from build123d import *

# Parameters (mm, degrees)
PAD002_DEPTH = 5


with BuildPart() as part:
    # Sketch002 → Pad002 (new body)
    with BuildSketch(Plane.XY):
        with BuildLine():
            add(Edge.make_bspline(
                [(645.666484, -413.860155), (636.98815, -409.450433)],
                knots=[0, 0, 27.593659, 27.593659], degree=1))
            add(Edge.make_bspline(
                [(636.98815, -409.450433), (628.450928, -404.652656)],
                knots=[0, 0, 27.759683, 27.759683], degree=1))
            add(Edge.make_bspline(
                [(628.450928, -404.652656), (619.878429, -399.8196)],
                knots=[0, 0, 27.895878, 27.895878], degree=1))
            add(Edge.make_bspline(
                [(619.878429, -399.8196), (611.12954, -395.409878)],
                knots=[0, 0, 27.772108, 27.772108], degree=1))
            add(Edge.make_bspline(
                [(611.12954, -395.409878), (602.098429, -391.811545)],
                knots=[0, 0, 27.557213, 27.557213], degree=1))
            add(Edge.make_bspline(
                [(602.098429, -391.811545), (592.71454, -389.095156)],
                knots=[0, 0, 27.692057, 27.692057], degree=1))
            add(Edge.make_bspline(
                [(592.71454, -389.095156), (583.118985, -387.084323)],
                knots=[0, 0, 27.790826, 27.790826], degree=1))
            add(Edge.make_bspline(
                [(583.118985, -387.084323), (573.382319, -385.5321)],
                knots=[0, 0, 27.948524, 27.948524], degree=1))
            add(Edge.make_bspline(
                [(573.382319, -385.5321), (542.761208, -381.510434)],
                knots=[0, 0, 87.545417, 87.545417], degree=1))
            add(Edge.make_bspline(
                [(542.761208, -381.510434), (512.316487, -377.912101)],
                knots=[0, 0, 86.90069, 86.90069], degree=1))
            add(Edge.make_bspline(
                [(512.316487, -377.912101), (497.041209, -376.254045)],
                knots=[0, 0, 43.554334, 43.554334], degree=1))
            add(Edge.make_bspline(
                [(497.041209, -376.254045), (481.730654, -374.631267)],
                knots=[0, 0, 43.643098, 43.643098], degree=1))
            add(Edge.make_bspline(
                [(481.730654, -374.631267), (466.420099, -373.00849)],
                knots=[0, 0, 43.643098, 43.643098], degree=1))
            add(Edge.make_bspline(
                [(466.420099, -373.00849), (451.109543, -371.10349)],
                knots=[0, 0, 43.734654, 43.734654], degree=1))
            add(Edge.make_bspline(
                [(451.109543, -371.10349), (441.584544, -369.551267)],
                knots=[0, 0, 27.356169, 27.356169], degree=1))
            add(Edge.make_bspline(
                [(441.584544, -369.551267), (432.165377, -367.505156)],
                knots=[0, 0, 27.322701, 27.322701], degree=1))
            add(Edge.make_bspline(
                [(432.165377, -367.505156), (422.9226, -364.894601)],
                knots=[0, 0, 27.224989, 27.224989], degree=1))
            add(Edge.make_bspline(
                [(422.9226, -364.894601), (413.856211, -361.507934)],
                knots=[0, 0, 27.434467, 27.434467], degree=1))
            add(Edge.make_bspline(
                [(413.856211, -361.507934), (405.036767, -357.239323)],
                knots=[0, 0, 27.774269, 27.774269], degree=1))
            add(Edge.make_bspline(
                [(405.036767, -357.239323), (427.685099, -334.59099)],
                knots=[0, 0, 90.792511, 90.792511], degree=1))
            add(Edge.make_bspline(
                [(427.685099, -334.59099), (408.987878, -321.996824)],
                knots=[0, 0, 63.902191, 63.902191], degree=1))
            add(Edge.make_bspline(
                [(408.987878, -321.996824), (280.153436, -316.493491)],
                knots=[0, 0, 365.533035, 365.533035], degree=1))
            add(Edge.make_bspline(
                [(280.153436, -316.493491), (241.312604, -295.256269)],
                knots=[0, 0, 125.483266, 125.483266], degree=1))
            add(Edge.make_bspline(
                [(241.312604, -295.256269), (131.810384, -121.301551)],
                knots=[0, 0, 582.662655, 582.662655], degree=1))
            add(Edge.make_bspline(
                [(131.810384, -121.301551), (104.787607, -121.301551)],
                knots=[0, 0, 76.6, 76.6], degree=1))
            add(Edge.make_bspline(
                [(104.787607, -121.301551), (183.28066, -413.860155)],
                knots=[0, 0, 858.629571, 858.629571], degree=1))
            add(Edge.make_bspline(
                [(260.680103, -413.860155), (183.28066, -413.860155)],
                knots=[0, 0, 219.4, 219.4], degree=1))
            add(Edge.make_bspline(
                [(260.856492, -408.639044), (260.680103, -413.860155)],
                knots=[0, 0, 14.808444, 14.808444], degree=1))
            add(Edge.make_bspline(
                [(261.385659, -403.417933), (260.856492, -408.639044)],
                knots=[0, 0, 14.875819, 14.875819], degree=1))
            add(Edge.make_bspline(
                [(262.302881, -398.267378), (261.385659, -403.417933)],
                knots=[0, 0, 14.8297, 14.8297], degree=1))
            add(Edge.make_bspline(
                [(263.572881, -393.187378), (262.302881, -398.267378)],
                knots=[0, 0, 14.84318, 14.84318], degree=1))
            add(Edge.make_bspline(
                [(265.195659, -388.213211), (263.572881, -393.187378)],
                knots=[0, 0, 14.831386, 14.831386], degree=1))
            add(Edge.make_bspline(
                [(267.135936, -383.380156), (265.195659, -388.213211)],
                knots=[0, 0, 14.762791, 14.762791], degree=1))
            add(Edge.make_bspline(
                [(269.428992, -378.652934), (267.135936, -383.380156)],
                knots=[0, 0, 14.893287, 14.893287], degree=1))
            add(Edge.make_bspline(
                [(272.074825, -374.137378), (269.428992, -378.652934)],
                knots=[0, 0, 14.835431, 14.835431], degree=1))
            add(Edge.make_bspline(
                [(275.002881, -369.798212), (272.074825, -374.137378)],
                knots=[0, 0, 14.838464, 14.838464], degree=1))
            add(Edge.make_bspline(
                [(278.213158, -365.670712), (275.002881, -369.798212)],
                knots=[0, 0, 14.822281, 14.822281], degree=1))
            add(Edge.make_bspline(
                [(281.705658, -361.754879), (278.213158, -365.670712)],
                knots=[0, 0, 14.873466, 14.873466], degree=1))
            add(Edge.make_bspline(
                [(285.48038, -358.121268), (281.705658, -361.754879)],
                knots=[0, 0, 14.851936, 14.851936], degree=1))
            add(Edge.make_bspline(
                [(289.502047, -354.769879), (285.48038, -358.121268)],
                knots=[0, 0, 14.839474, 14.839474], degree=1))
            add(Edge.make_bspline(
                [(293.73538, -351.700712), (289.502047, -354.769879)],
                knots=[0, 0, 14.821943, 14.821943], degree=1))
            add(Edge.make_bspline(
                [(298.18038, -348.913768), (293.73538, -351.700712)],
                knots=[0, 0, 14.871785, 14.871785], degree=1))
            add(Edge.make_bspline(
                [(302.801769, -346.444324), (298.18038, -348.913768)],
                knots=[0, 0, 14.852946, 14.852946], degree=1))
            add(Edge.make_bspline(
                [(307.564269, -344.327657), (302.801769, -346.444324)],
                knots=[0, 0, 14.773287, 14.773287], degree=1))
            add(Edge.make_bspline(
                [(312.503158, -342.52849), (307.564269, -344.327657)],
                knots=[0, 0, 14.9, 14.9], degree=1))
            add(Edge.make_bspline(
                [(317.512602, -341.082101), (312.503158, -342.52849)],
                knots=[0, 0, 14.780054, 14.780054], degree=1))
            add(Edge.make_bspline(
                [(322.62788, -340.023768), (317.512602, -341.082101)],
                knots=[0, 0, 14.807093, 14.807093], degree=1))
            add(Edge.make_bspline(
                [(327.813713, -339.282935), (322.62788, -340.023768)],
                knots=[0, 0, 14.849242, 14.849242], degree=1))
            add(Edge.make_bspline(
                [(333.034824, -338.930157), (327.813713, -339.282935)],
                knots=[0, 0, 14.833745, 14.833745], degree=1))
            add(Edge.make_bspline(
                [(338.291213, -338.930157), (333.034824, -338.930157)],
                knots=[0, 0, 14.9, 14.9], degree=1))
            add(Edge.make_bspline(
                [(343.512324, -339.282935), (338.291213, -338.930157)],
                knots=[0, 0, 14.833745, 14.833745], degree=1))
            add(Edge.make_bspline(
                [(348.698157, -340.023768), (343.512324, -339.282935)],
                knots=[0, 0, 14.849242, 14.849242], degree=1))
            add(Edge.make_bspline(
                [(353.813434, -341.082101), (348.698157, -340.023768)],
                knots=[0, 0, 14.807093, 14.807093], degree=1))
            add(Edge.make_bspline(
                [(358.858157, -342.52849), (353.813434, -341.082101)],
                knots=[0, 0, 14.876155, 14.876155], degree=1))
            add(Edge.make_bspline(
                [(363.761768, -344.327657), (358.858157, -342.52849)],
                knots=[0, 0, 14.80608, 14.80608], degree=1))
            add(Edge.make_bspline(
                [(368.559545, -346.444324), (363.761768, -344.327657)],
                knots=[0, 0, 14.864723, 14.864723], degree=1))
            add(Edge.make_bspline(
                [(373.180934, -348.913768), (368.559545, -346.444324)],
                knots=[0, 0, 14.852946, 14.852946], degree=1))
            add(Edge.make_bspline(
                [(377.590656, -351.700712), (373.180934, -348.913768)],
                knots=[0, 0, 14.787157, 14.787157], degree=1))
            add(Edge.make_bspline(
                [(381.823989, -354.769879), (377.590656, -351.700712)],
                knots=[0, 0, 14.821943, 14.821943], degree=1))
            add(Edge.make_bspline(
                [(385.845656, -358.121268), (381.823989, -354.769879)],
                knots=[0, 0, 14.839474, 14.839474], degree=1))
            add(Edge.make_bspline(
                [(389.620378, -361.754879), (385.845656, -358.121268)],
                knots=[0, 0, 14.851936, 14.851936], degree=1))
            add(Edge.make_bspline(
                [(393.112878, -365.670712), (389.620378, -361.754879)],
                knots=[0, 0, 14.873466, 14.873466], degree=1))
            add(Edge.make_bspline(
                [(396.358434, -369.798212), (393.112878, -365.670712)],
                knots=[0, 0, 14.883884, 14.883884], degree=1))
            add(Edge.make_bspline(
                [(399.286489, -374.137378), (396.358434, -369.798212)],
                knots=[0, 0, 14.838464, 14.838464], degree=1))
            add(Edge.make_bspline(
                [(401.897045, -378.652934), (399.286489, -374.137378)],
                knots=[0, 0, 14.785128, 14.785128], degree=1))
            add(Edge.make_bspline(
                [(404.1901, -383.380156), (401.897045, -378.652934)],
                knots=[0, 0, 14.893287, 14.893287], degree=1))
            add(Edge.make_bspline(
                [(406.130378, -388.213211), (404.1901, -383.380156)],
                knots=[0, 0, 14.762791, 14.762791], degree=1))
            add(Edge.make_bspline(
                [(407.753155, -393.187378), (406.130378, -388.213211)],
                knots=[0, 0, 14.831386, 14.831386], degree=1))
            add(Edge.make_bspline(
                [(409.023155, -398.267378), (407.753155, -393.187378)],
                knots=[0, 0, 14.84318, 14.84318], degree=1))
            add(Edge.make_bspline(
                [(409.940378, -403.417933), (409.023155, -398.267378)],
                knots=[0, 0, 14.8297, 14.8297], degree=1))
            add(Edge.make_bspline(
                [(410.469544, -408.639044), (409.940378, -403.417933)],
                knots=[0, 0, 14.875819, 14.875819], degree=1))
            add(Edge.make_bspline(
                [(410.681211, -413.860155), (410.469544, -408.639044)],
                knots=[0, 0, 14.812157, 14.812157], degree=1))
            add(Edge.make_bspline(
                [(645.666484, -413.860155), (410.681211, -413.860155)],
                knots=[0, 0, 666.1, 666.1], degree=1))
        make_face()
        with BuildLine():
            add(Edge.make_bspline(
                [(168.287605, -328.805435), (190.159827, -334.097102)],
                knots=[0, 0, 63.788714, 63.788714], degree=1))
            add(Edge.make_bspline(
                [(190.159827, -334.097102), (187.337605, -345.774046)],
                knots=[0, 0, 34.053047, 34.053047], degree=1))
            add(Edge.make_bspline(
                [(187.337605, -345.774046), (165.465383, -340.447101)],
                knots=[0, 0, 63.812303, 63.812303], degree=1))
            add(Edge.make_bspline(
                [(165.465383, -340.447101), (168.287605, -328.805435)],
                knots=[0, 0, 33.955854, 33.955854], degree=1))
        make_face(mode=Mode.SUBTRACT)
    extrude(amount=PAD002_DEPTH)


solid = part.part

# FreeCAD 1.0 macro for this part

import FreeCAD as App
import Part
import Sketcher
from FreeCAD import Vector

doc = App.newDocument("Part")
body = doc.addObject("PartDesign::Body", "Body")

# Sketch on XY plane
sketch1 = body.newObject("Sketcher::SketchObject", "Sketch")
sketch1.AttachmentSupport = (doc.getObject("XY_Plane"), [""])
sketch1.MapMode = "FlatFace"
sketch1.addGeometry([
    Part.BSplineCurve([Vector(645.666484, -413.860155, 0), Vector(636.98815, -409.450433, 0)], [2, 2], [0, 27.593659], False, 1, [1, 1], False),  # 0
    Part.BSplineCurve([Vector(636.98815, -409.450433, 0), Vector(628.450928, -404.652656, 0)], [2, 2], [0, 27.759683], False, 1, [1, 1], False),  # 1
    Part.BSplineCurve([Vector(628.450928, -404.652656, 0), Vector(619.878429, -399.8196, 0)], [2, 2], [0, 27.895878], False, 1, [1, 1], False),  # 2
    Part.BSplineCurve([Vector(619.878429, -399.8196, 0), Vector(611.12954, -395.409878, 0)], [2, 2], [0, 27.772108], False, 1, [1, 1], False),  # 3
    Part.BSplineCurve([Vector(611.12954, -395.409878, 0), Vector(602.098429, -391.811545, 0)], [2, 2], [0, 27.557213], False, 1, [1, 1], False),  # 4
    Part.BSplineCurve([Vector(602.098429, -391.811545, 0), Vector(592.71454, -389.095156, 0)], [2, 2], [0, 27.692057], False, 1, [1, 1], False),  # 5
    Part.BSplineCurve([Vector(592.71454, -389.095156, 0), Vector(583.118985, -387.084323, 0)], [2, 2], [0, 27.790826], False, 1, [1, 1], False),  # 6
    Part.BSplineCurve([Vector(583.118985, -387.084323, 0), Vector(573.382319, -385.5321, 0)], [2, 2], [0, 27.948524], False, 1, [1, 1], False),  # 7
    Part.BSplineCurve([Vector(573.382319, -385.5321, 0), Vector(542.761208, -381.510434, 0)], [2, 2], [0, 87.545417], False, 1, [1, 1], False),  # 8
    Part.BSplineCurve([Vector(542.761208, -381.510434, 0), Vector(512.316487, -377.912101, 0)], [2, 2], [0, 86.90069], False, 1, [1, 1], False),  # 9
    Part.BSplineCurve([Vector(512.316487, -377.912101, 0), Vector(497.041209, -376.254045, 0)], [2, 2], [0, 43.554334], False, 1, [1, 1], False),  # 10
    Part.BSplineCurve([Vector(497.041209, -376.254045, 0), Vector(481.730654, -374.631267, 0)], [2, 2], [0, 43.643098], False, 1, [1, 1], False),  # 11
    Part.BSplineCurve([Vector(481.730654, -374.631267, 0), Vector(466.420099, -373.00849, 0)], [2, 2], [0, 43.643098], False, 1, [1, 1], False),  # 12
    Part.BSplineCurve([Vector(466.420099, -373.00849, 0), Vector(451.109543, -371.10349, 0)], [2, 2], [0, 43.734654], False, 1, [1, 1], False),  # 13
    Part.BSplineCurve([Vector(451.109543, -371.10349, 0), Vector(441.584544, -369.551267, 0)], [2, 2], [0, 27.356169], False, 1, [1, 1], False),  # 14
    Part.BSplineCurve([Vector(441.584544, -369.551267, 0), Vector(432.165377, -367.505156, 0)], [2, 2], [0, 27.322701], False, 1, [1, 1], False),  # 15
    Part.BSplineCurve([Vector(432.165377, -367.505156, 0), Vector(422.9226, -364.894601, 0)], [2, 2], [0, 27.224989], False, 1, [1, 1], False),  # 16
    Part.BSplineCurve([Vector(422.9226, -364.894601, 0), Vector(413.856211, -361.507934, 0)], [2, 2], [0, 27.434467], False, 1, [1, 1], False),  # 17
    Part.BSplineCurve([Vector(413.856211, -361.507934, 0), Vector(405.036767, -357.239323, 0)], [2, 2], [0, 27.774269], False, 1, [1, 1], False),  # 18
    Part.BSplineCurve([Vector(405.036767, -357.239323, 0), Vector(427.685099, -334.59099, 0)], [2, 2], [0, 90.792511], False, 1, [1, 1], False),  # 19
    Part.BSplineCurve([Vector(427.685099, -334.59099, 0), Vector(408.987878, -321.996824, 0)], [2, 2], [0, 63.902191], False, 1, [1, 1], False),  # 20
    Part.BSplineCurve([Vector(408.987878, -321.996824, 0), Vector(280.153436, -316.493491, 0)], [2, 2], [0, 365.533035], False, 1, [1, 1], False),  # 21
    Part.BSplineCurve([Vector(280.153436, -316.493491, 0), Vector(241.312604, -295.256269, 0)], [2, 2], [0, 125.483266], False, 1, [1, 1], False),  # 22
    Part.BSplineCurve([Vector(241.312604, -295.256269, 0), Vector(131.810384, -121.301551, 0)], [2, 2], [0, 582.662655], False, 1, [1, 1], False),  # 23
    Part.BSplineCurve([Vector(131.810384, -121.301551, 0), Vector(104.787607, -121.301551, 0)], [2, 2], [0, 76.6], False, 1, [1, 1], False),  # 24
    Part.BSplineCurve([Vector(104.787607, -121.301551, 0), Vector(183.28066, -413.860155, 0)], [2, 2], [0, 858.629571], False, 1, [1, 1], False),  # 25
    Part.BSplineCurve([Vector(260.680103, -413.860155, 0), Vector(183.28066, -413.860155, 0)], [2, 2], [0, 219.4], False, 1, [1, 1], False),  # 26
    Part.BSplineCurve([Vector(260.856492, -408.639044, 0), Vector(260.680103, -413.860155, 0)], [2, 2], [0, 14.808444], False, 1, [1, 1], False),  # 27
    Part.BSplineCurve([Vector(261.385659, -403.417933, 0), Vector(260.856492, -408.639044, 0)], [2, 2], [0, 14.875819], False, 1, [1, 1], False),  # 28
    Part.BSplineCurve([Vector(262.302881, -398.267378, 0), Vector(261.385659, -403.417933, 0)], [2, 2], [0, 14.8297], False, 1, [1, 1], False),  # 29
    Part.BSplineCurve([Vector(263.572881, -393.187378, 0), Vector(262.302881, -398.267378, 0)], [2, 2], [0, 14.84318], False, 1, [1, 1], False),  # 30
    Part.BSplineCurve([Vector(265.195659, -388.213211, 0), Vector(263.572881, -393.187378, 0)], [2, 2], [0, 14.831386], False, 1, [1, 1], False),  # 31
    Part.BSplineCurve([Vector(267.135936, -383.380156, 0), Vector(265.195659, -388.213211, 0)], [2, 2], [0, 14.762791], False, 1, [1, 1], False),  # 32
    Part.BSplineCurve([Vector(269.428992, -378.652934, 0), Vector(267.135936, -383.380156, 0)], [2, 2], [0, 14.893287], False, 1, [1, 1], False),  # 33
    Part.BSplineCurve([Vector(272.074825, -374.137378, 0), Vector(269.428992, -378.652934, 0)], [2, 2], [0, 14.835431], False, 1, [1, 1], False),  # 34
    Part.BSplineCurve([Vector(275.002881, -369.798212, 0), Vector(272.074825, -374.137378, 0)], [2, 2], [0, 14.838464], False, 1, [1, 1], False),  # 35
    Part.BSplineCurve([Vector(278.213158, -365.670712, 0), Vector(275.002881, -369.798212, 0)], [2, 2], [0, 14.822281], False, 1, [1, 1], False),  # 36
    Part.BSplineCurve([Vector(281.705658, -361.754879, 0), Vector(278.213158, -365.670712, 0)], [2, 2], [0, 14.873466], False, 1, [1, 1], False),  # 37
    Part.BSplineCurve([Vector(285.48038, -358.121268, 0), Vector(281.705658, -361.754879, 0)], [2, 2], [0, 14.851936], False, 1, [1, 1], False),  # 38
    Part.BSplineCurve([Vector(289.502047, -354.769879, 0), Vector(285.48038, -358.121268, 0)], [2, 2], [0, 14.839474], False, 1, [1, 1], False),  # 39
    Part.BSplineCurve([Vector(293.73538, -351.700712, 0), Vector(289.502047, -354.769879, 0)], [2, 2], [0, 14.821943], False, 1, [1, 1], False),  # 40
    Part.BSplineCurve([Vector(298.18038, -348.913768, 0), Vector(293.73538, -351.700712, 0)], [2, 2], [0, 14.871785], False, 1, [1, 1], False),  # 41
    Part.BSplineCurve([Vector(302.801769, -346.444324, 0), Vector(298.18038, -348.913768, 0)], [2, 2], [0, 14.852946], False, 1, [1, 1], False),  # 42
    Part.BSplineCurve([Vector(307.564269, -344.327657, 0), Vector(302.801769, -346.444324, 0)], [2, 2], [0, 14.773287], False, 1, [1, 1], False),  # 43
    Part.BSplineCurve([Vector(312.503158, -342.52849, 0), Vector(307.564269, -344.327657, 0)], [2, 2], [0, 14.9], False, 1, [1, 1], False),  # 44
    Part.BSplineCurve([Vector(317.512602, -341.082101, 0), Vector(312.503158, -342.52849, 0)], [2, 2], [0, 14.780054], False, 1, [1, 1], False),  # 45
    Part.BSplineCurve([Vector(322.62788, -340.023768, 0), Vector(317.512602, -341.082101, 0)], [2, 2], [0, 14.807093], False, 1, [1, 1], False),  # 46
    Part.BSplineCurve([Vector(327.813713, -339.282935, 0), Vector(322.62788, -340.023768, 0)], [2, 2], [0, 14.849242], False, 1, [1, 1], False),  # 47
    Part.BSplineCurve([Vector(333.034824, -338.930157, 0), Vector(327.813713, -339.282935, 0)], [2, 2], [0, 14.833745], False, 1, [1, 1], False),  # 48
    Part.BSplineCurve([Vector(338.291213, -338.930157, 0), Vector(333.034824, -338.930157, 0)], [2, 2], [0, 14.9], False, 1, [1, 1], False),  # 49
    Part.BSplineCurve([Vector(343.512324, -339.282935, 0), Vector(338.291213, -338.930157, 0)], [2, 2], [0, 14.833745], False, 1, [1, 1], False),  # 50
    Part.BSplineCurve([Vector(348.698157, -340.023768, 0), Vector(343.512324, -339.282935, 0)], [2, 2], [0, 14.849242], False, 1, [1, 1], False),  # 51
    Part.BSplineCurve([Vector(353.813434, -341.082101, 0), Vector(348.698157, -340.023768, 0)], [2, 2], [0, 14.807093], False, 1, [1, 1], False),  # 52
    Part.BSplineCurve([Vector(358.858157, -342.52849, 0), Vector(353.813434, -341.082101, 0)], [2, 2], [0, 14.876155], False, 1, [1, 1], False),  # 53
    Part.BSplineCurve([Vector(363.761768, -344.327657, 0), Vector(358.858157, -342.52849, 0)], [2, 2], [0, 14.80608], False, 1, [1, 1], False),  # 54
    Part.BSplineCurve([Vector(368.559545, -346.444324, 0), Vector(363.761768, -344.327657, 0)], [2, 2], [0, 14.864723], False, 1, [1, 1], False),  # 55
    Part.BSplineCurve([Vector(373.180934, -348.913768, 0), Vector(368.559545, -346.444324, 0)], [2, 2], [0, 14.852946], False, 1, [1, 1], False),  # 56
    Part.BSplineCurve([Vector(377.590656, -351.700712, 0), Vector(373.180934, -348.913768, 0)], [2, 2], [0, 14.787157], False, 1, [1, 1], False),  # 57
    Part.BSplineCurve([Vector(381.823989, -354.769879, 0), Vector(377.590656, -351.700712, 0)], [2, 2], [0, 14.821943], False, 1, [1, 1], False),  # 58
    Part.BSplineCurve([Vector(385.845656, -358.121268, 0), Vector(381.823989, -354.769879, 0)], [2, 2], [0, 14.839474], False, 1, [1, 1], False),  # 59
    Part.BSplineCurve([Vector(389.620378, -361.754879, 0), Vector(385.845656, -358.121268, 0)], [2, 2], [0, 14.851936], False, 1, [1, 1], False),  # 60
    Part.BSplineCurve([Vector(393.112878, -365.670712, 0), Vector(389.620378, -361.754879, 0)], [2, 2], [0, 14.873466], False, 1, [1, 1], False),  # 61
    Part.BSplineCurve([Vector(396.358434, -369.798212, 0), Vector(393.112878, -365.670712, 0)], [2, 2], [0, 14.883884], False, 1, [1, 1], False),  # 62
    Part.BSplineCurve([Vector(399.286489, -374.137378, 0), Vector(396.358434, -369.798212, 0)], [2, 2], [0, 14.838464], False, 1, [1, 1], False),  # 63
    Part.BSplineCurve([Vector(401.897045, -378.652934, 0), Vector(399.286489, -374.137378, 0)], [2, 2], [0, 14.785128], False, 1, [1, 1], False),  # 64
    Part.BSplineCurve([Vector(404.1901, -383.380156, 0), Vector(401.897045, -378.652934, 0)], [2, 2], [0, 14.893287], False, 1, [1, 1], False),  # 65
    Part.BSplineCurve([Vector(406.130378, -388.213211, 0), Vector(404.1901, -383.380156, 0)], [2, 2], [0, 14.762791], False, 1, [1, 1], False),  # 66
    Part.BSplineCurve([Vector(407.753155, -393.187378, 0), Vector(406.130378, -388.213211, 0)], [2, 2], [0, 14.831386], False, 1, [1, 1], False),  # 67
    Part.BSplineCurve([Vector(409.023155, -398.267378, 0), Vector(407.753155, -393.187378, 0)], [2, 2], [0, 14.84318], False, 1, [1, 1], False),  # 68
    Part.BSplineCurve([Vector(409.940378, -403.417933, 0), Vector(409.023155, -398.267378, 0)], [2, 2], [0, 14.8297], False, 1, [1, 1], False),  # 69
    Part.BSplineCurve([Vector(410.469544, -408.639044, 0), Vector(409.940378, -403.417933, 0)], [2, 2], [0, 14.875819], False, 1, [1, 1], False),  # 70
    Part.BSplineCurve([Vector(410.681211, -413.860155, 0), Vector(410.469544, -408.639044, 0)], [2, 2], [0, 14.812157], False, 1, [1, 1], False),  # 71
    Part.BSplineCurve([Vector(645.666484, -413.860155, 0), Vector(410.681211, -413.860155, 0)], [2, 2], [0, 666.1], False, 1, [1, 1], False),  # 72
    Part.BSplineCurve([Vector(165.465383, -340.447101, 0), Vector(168.287605, -328.805435, 0)], [2, 2], [0, 33.955854], False, 1, [1, 1], False),  # 73
    Part.BSplineCurve([Vector(168.287605, -328.805435, 0), Vector(190.159827, -334.097102, 0)], [2, 2], [0, 63.788714], False, 1, [1, 1], False),  # 74
    Part.BSplineCurve([Vector(190.159827, -334.097102, 0), Vector(187.337605, -345.774046, 0)], [2, 2], [0, 34.053047], False, 1, [1, 1], False),  # 75
    Part.BSplineCurve([Vector(187.337605, -345.774046, 0), Vector(165.465383, -340.447101, 0)], [2, 2], [0, 63.812303], False, 1, [1, 1], False),  # 76
], False)
sketch1.addConstraint([
    Sketcher.Constraint("Block", 0),
    Sketcher.Constraint("Block", 1),
    Sketcher.Constraint("Block", 2),
    Sketcher.Constraint("Block", 3),
    Sketcher.Constraint("Block", 4),
    Sketcher.Constraint("Block", 5),
    Sketcher.Constraint("Block", 6),
    Sketcher.Constraint("Block", 7),
    Sketcher.Constraint("Block", 8),
    Sketcher.Constraint("Block", 9),
    Sketcher.Constraint("Block", 10),
    Sketcher.Constraint("Block", 11),
    Sketcher.Constraint("Block", 12),
    Sketcher.Constraint("Block", 13),
    Sketcher.Constraint("Block", 14),
    Sketcher.Constraint("Block", 15),
    Sketcher.Constraint("Block", 16),
    Sketcher.Constraint("Block", 17),
    Sketcher.Constraint("Block", 18),
    Sketcher.Constraint("Block", 19),
    Sketcher.Constraint("Block", 20),
    Sketcher.Constraint("Block", 21),
    Sketcher.Constraint("Block", 22),
    Sketcher.Constraint("Block", 23),
    Sketcher.Constraint("Block", 24),
    Sketcher.Constraint("Block", 25),
    Sketcher.Constraint("Block", 26),
    Sketcher.Constraint("Block", 27),
    Sketcher.Constraint("Block", 28),
    Sketcher.Constraint("Block", 29),
    Sketcher.Constraint("Block", 30),
    Sketcher.Constraint("Block", 31),
    Sketcher.Constraint("Block", 32),
    Sketcher.Constraint("Block", 33),
    Sketcher.Constraint("Block", 34),
    Sketcher.Constraint("Block", 35),
    Sketcher.Constraint("Block", 36),
    Sketcher.Constraint("Block", 37),
    Sketcher.Constraint("Block", 38),
    Sketcher.Constraint("Block", 39),
    Sketcher.Constraint("Block", 40),
    Sketcher.Constraint("Block", 41),
    Sketcher.Constraint("Block", 42),
    Sketcher.Constraint("Block", 43),
    Sketcher.Constraint("Block", 44),
    Sketcher.Constraint("Block", 45),
    Sketcher.Constraint("Block", 46),
    Sketcher.Constraint("Block", 47),
    Sketcher.Constraint("Block", 48),
    Sketcher.Constraint("Block", 49),
    Sketcher.Constraint("Block", 50),
    Sketcher.Constraint("Block", 51),
    Sketcher.Constraint("Block", 52),
    Sketcher.Constraint("Block", 53),
    Sketcher.Constraint("Block", 54),
    Sketcher.Constraint("Block", 55),
    Sketcher.Constraint("Block", 56),
    Sketcher.Constraint("Block", 57),
    Sketcher.Constraint("Block", 58),
    Sketcher.Constraint("Block", 59),
    Sketcher.Constraint("Block", 60),
    Sketcher.Constraint("Block", 61),
    Sketcher.Constraint("Block", 62),
    Sketcher.Constraint("Block", 63),
    Sketcher.Constraint("Block", 64),
    Sketcher.Constraint("Block", 65),
    Sketcher.Constraint("Block", 66),
    Sketcher.Constraint("Block", 67),
    Sketcher.Constraint("Block", 68),
    Sketcher.Constraint("Block", 69),
    Sketcher.Constraint("Block", 70),
    Sketcher.Constraint("Block", 71),
    Sketcher.Constraint("Block", 72),
    Sketcher.Constraint("Block", 73),
    Sketcher.Constraint("Block", 74),
    Sketcher.Constraint("Block", 75),
    Sketcher.Constraint("Block", 76),
])
pad1 = body.newObject("PartDesign::Pad", "Pad")
pad1.Profile = sketch1
pad1.Length = 5

doc.recompute()
